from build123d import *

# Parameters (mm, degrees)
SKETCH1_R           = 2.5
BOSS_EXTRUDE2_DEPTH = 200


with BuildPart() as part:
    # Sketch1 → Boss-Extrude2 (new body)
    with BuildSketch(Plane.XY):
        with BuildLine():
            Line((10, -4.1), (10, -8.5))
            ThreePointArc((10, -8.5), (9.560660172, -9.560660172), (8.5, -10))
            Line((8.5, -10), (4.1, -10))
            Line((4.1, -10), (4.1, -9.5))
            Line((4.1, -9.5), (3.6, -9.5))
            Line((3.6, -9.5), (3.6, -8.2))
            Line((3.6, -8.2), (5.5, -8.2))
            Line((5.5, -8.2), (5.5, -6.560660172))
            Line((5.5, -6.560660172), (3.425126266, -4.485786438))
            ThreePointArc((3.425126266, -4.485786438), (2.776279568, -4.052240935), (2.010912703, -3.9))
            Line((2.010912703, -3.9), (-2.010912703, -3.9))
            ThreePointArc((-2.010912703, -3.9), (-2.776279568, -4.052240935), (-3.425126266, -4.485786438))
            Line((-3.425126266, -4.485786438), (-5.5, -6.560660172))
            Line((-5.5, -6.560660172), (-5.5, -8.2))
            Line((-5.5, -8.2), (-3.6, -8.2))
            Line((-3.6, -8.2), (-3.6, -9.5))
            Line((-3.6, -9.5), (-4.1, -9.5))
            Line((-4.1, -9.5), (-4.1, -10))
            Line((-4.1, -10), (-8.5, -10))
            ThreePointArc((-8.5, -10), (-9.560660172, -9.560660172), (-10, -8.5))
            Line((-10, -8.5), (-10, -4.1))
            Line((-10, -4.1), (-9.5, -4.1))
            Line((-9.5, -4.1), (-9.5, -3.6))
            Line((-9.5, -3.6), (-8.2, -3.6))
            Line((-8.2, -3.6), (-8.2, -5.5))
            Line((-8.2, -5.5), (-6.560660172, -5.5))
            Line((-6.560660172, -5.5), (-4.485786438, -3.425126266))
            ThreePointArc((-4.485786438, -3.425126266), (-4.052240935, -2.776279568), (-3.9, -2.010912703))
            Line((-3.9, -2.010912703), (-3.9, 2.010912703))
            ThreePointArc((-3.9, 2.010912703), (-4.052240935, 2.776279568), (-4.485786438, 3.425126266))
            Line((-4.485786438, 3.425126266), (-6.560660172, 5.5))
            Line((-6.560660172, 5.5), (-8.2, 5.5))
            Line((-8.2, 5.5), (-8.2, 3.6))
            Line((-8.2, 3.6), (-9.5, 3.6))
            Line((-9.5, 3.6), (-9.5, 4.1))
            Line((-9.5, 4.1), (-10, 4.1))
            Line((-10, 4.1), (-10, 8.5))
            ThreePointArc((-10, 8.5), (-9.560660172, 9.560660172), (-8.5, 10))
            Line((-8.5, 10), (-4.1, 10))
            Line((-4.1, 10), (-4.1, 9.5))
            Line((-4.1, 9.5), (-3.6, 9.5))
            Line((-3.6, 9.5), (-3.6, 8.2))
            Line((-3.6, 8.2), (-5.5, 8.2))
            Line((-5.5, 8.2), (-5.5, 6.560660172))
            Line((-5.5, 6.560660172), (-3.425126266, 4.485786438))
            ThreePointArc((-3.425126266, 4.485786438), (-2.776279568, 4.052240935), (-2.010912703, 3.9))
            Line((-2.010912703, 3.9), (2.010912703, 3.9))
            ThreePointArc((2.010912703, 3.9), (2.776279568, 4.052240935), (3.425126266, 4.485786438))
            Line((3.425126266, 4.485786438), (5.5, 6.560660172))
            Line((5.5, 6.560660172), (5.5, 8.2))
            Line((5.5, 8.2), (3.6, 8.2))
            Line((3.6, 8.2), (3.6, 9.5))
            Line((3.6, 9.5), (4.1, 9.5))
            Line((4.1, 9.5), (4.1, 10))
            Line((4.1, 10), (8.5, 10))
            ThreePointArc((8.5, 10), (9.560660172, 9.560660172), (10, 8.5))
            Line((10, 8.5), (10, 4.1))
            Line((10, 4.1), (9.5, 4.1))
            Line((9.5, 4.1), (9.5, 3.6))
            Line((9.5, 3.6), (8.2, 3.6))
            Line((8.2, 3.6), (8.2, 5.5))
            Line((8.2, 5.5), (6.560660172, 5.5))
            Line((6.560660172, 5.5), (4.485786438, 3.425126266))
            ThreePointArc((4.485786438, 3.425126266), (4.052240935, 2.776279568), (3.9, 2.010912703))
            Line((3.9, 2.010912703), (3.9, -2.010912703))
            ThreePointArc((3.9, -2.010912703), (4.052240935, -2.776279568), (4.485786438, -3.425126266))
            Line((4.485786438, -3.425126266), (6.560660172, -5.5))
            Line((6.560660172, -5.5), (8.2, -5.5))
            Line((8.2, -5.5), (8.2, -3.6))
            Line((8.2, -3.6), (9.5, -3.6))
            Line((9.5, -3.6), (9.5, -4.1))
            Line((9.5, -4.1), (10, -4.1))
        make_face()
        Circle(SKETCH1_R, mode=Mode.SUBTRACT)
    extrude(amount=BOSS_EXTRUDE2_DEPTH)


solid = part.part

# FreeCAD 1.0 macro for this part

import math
import FreeCAD as App
import Part
import Sketcher

doc = App.newDocument("Part")
body = doc.addObject("PartDesign::Body", "Body")

sketch1 = body.newObject("Sketcher::SketchObject", "Sketch")
sketch1.AttachmentSupport = (doc.getObject("XY_Plane"), [""])
sketch1.MapMode = "FlatFace"
sketch1.addGeometry(Part.LineSegment(App.Vector(10, -8.5, 0), App.Vector(10, -4.1, 0)), False)
sketch1.addGeometry(Part.LineSegment(App.Vector(10, -4.1, 0), App.Vector(9.5, -4.1, 0)), False)
sketch1.addGeometry(Part.LineSegment(App.Vector(9.5, -4.1, 0), App.Vector(9.5, -3.6, 0)), False)
sketch1.addGeometry(Part.LineSegment(App.Vector(9.5, -3.6, 0), App.Vector(8.2, -3.6, 0)), False)
sketch1.addGeometry(Part.LineSegment(App.Vector(8.2, -3.6, 0), App.Vector(8.2, -5.5, 0)), False)
sketch1.addGeometry(Part.LineSegment(App.Vector(8.2, -5.5, 0), App.Vector(6.56, -5.5, 0)), False)
sketch1.addGeometry(Part.LineSegment(App.Vector(6.56, -5.5, 0), App.Vector(4.49, -3.43, 0)), False)
sketch1.addGeometry(Part.ArcOfCircle(Part.Circle(App.Vector(5.9, -2.01, 0), App.Vector(0, 0, 1), 2), math.radians(180), math.radians(225)), False)
sketch1.addGeometry(Part.LineSegment(App.Vector(3.9, -2.01, 0), App.Vector(3.9, 2.01, 0)), False)
sketch1.addGeometry(Part.ArcOfCircle(Part.Circle(App.Vector(5.9, 2.01, 0), App.Vector(0, 0, 1), 2), math.radians(135), math.radians(180)), False)
sketch1.addGeometry(Part.LineSegment(App.Vector(4.49, 3.43, 0), App.Vector(6.56, 5.5, 0)), False)
sketch1.addGeometry(Part.LineSegment(App.Vector(6.56, 5.5, 0), App.Vector(8.2, 5.5, 0)), False)
sketch1.addGeometry(Part.LineSegment(App.Vector(8.2, 5.5, 0), App.Vector(8.2, 3.6, 0)), False)
sketch1.addGeometry(Part.LineSegment(App.Vector(8.2, 3.6, 0), App.Vector(9.5, 3.6, 0)), False)
sketch1.addGeometry(Part.LineSegment(App.Vector(9.5, 3.6, 0), App.Vector(9.5, 4.1, 0)), False)
sketch1.addGeometry(Part.LineSegment(App.Vector(9.5, 4.1, 0), App.Vector(10, 4.1, 0)), False)
sketch1.addGeometry(Part.LineSegment(App.Vector(10, 4.1, 0), App.Vector(10, 8.5, 0)), False)
sketch1.addGeometry(Part.ArcOfCircle(Part.Circle(App.Vector(8.5, 8.5, 0), App.Vector(0, 0, 1), 1.5), math.radians(0), math.radians(90)), False)
sketch1.addGeometry(Part.LineSegment(App.Vector(8.5, 10, 0), App.Vector(4.1, 10, 0)), False)
sketch1.addGeometry(Part.LineSegment(App.Vector(4.1, 10, 0), App.Vector(4.1, 9.5, 0)), False)
sketch1.addGeometry(Part.LineSegment(App.Vector(4.1, 9.5, 0), App.Vector(3.6, 9.5, 0)), False)
sketch1.addGeometry(Part.LineSegment(App.Vector(3.6, 9.5, 0), App.Vector(3.6, 8.2, 0)), False)
sketch1.addGeometry(Part.LineSegment(App.Vector(3.6, 8.2, 0), App.Vector(5.5, 8.2, 0)), False)
sketch1.addGeometry(Part.LineSegment(App.Vector(5.5, 8.2, 0), App.Vector(5.5, 6.56, 0)), False)
sketch1.addGeometry(Part.LineSegment(App.Vector(5.5, 6.56, 0), App.Vector(3.43, 4.49, 0)), False)
sketch1.addGeometry(Part.ArcOfCircle(Part.Circle(App.Vector(2.01, 5.9, 0), App.Vector(0, 0, 1), 2), math.radians(-90), math.radians(-45)), False)
sketch1.addGeometry(Part.LineSegment(App.Vector(2.01, 3.9, 0), App.Vector(-2.01, 3.9, 0)), False)
sketch1.addGeometry(Part.ArcOfCircle(Part.Circle(App.Vector(-2.01, 5.9, 0), App.Vector(0, 0, 1), 2), math.radians(-135), math.radians(-90)), False)
sketch1.addGeometry(Part.LineSegment(App.Vector(-3.43, 4.49, 0), App.Vector(-5.5, 6.56, 0)), False)
sketch1.addGeometry(Part.LineSegment(App.Vector(-5.5, 6.56, 0), App.Vector(-5.5, 8.2, 0)), False)
sketch1.addGeometry(Part.LineSegment(App.Vector(-5.5, 8.2, 0), App.Vector(-3.6, 8.2, 0)), False)
sketch1.addGeometry(Part.LineSegment(App.Vector(-3.6, 8.2, 0), App.Vector(-3.6, 9.5, 0)), False)
sketch1.addGeometry(Part.LineSegment(App.Vector(-3.6, 9.5, 0), App.Vector(-4.1, 9.5, 0)), False)
sketch1.addGeometry(Part.LineSegment(App.Vector(-4.1, 9.5, 0), App.Vector(-4.1, 10, 0)), False)
sketch1.addGeometry(Part.LineSegment(App.Vector(-4.1, 10, 0), App.Vector(-8.5, 10, 0)), False)
sketch1.addGeometry(Part.ArcOfCircle(Part.Circle(App.Vector(-8.5, 8.5, 0), App.Vector(0, 0, 1), 1.5), math.radians(90), math.radians(180)), False)
sketch1.addGeometry(Part.LineSegment(App.Vector(-10, 8.5, 0), App.Vector(-10, 4.1, 0)), False)
sketch1.addGeometry(Part.LineSegment(App.Vector(-10, 4.1, 0), App.Vector(-9.5, 4.1, 0)), False)
sketch1.addGeometry(Part.LineSegment(App.Vector(-9.5, 4.1, 0), App.Vector(-9.5, 3.6, 0)), False)
sketch1.addGeometry(Part.LineSegment(App.Vector(-9.5, 3.6, 0), App.Vector(-8.2, 3.6, 0)), False)
sketch1.addGeometry(Part.LineSegment(App.Vector(-8.2, 3.6, 0), App.Vector(-8.2, 5.5, 0)), False)
sketch1.addGeometry(Part.LineSegment(App.Vector(-8.2, 5.5, 0), App.Vector(-6.56, 5.5, 0)), False)
sketch1.addGeometry(Part.LineSegment(App.Vector(-6.56, 5.5, 0), App.Vector(-4.49, 3.43, 0)), False)
sketch1.addGeometry(Part.ArcOfCircle(Part.Circle(App.Vector(-5.9, 2.01, 0), App.Vector(0, 0, 1), 2), math.radians(0), math.radians(45)), False)
sketch1.addGeometry(Part.LineSegment(App.Vector(-3.9, 2.01, 0), App.Vector(-3.9, -2.01, 0)), False)
sketch1.addGeometry(Part.ArcOfCircle(Part.Circle(App.Vector(-5.9, -2.01, 0), App.Vector(0, 0, 1), 2), math.radians(-45), math.radians(0)), False)
sketch1.addGeometry(Part.LineSegment(App.Vector(-4.49, -3.43, 0), App.Vector(-6.56, -5.5, 0)), False)
sketch1.addGeometry(Part.LineSegment(App.Vector(-6.56, -5.5, 0), App.Vector(-8.2, -5.5, 0)), False)
sketch1.addGeometry(Part.LineSegment(App.Vector(-8.2, -5.5, 0), App.Vector(-8.2, -3.6, 0)), False)
sketch1.addGeometry(Part.LineSegment(App.Vector(-8.2, -3.6, 0), App.Vector(-9.5, -3.6, 0)), False)
sketch1.addGeometry(Part.LineSegment(App.Vector(-9.5, -3.6, 0), App.Vector(-9.5, -4.1, 0)), False)
sketch1.addGeometry(Part.LineSegment(App.Vector(-9.5, -4.1, 0), App.Vector(-10, -4.1, 0)), False)
sketch1.addGeometry(Part.LineSegment(App.Vector(-10, -4.1, 0), App.Vector(-10, -8.5, 0)), False)
sketch1.addGeometry(Part.ArcOfCircle(Part.Circle(App.Vector(-8.5, -8.5, 0), App.Vector(0, 0, 1), 1.5), math.radians(180), math.radians(270)), False)
sketch1.addGeometry(Part.LineSegment(App.Vector(-8.5, -10, 0), App.Vector(-4.1, -10, 0)), False)
sketch1.addGeometry(Part.LineSegment(App.Vector(-4.1, -10, 0), App.Vector(-4.1, -9.5, 0)), False)
sketch1.addGeometry(Part.LineSegment(App.Vector(-4.1, -9.5, 0), App.Vector(-3.6, -9.5, 0)), False)
sketch1.addGeometry(Part.LineSegment(App.Vector(-3.6, -9.5, 0), App.Vector(-3.6, -8.2, 0)), False)
sketch1.addGeometry(Part.LineSegment(App.Vector(-3.6, -8.2, 0), App.Vector(-5.5, -8.2, 0)), False)
sketch1.addGeometry(Part.LineSegment(App.Vector(-5.5, -8.2, 0), App.Vector(-5.5, -6.56, 0)), False)
sketch1.addGeometry(Part.LineSegment(App.Vector(-5.5, -6.56, 0), App.Vector(-3.43, -4.49, 0)), False)
sketch1.addGeometry(Part.ArcOfCircle(Part.Circle(App.Vector(-2.01, -5.9, 0), App.Vector(0, 0, 1), 2), math.radians(90), math.radians(135)), False)
sketch1.addGeometry(Part.LineSegment(App.Vector(-2.01, -3.9, 0), App.Vector(2.01, -3.9, 0)), False)
sketch1.addGeometry(Part.ArcOfCircle(Part.Circle(App.Vector(2.01, -5.9, 0), App.Vector(0, 0, 1), 2), math.radians(45), math.radians(90)), False)
sketch1.addGeometry(Part.LineSegment(App.Vector(3.43, -4.49, 0), App.Vector(5.5, -6.56, 0)), False)
sketch1.addGeometry(Part.LineSegment(App.Vector(5.5, -6.56, 0), App.Vector(5.5, -8.2, 0)), False)
sketch1.addGeometry(Part.LineSegment(App.Vector(5.5, -8.2, 0), App.Vector(3.6, -8.2, 0)), False)
sketch1.addGeometry(Part.LineSegment(App.Vector(3.6, -8.2, 0), App.Vector(3.6, -9.5, 0)), False)
sketch1.addGeometry(Part.LineSegment(App.Vector(3.6, -9.5, 0), App.Vector(4.1, -9.5, 0)), False)
sketch1.addGeometry(Part.LineSegment(App.Vector(4.1, -9.5, 0), App.Vector(4.1, -10, 0)), False)
sketch1.addGeometry(Part.LineSegment(App.Vector(4.1, -10, 0), App.Vector(8.5, -10, 0)), False)
sketch1.addGeometry(Part.ArcOfCircle(Part.Circle(App.Vector(8.5, -8.5, 0), App.Vector(0, 0, 1), 1.5), math.radians(-90), math.radians(0)), False)
sketch1.addGeometry(Part.Circle(App.Vector(0, 0, 0), App.Vector(0, 0, 1), 2.5), False)
sketch1.addConstraint(Sketcher.Constraint("Coincident", 0, 2, 1, 1))
sketch1.addConstraint(Sketcher.Constraint("Coincident", 1, 2, 2, 1))
sketch1.addConstraint(Sketcher.Constraint("Coincident", 2, 2, 3, 1))
sketch1.addConstraint(Sketcher.Constraint("Coincident", 3, 2, 4, 1))
sketch1.addConstraint(Sketcher.Constraint("Coincident", 4, 2, 5, 1))
sketch1.addConstraint(Sketcher.Constraint("Coincident", 5, 2, 6, 1))
sketch1.addConstraint(Sketcher.Constraint("Tangent", 6, 2, 7, 2))
sketch1.addConstraint(Sketcher.Constraint("Tangent", 7, 1, 8, 1))
sketch1.addConstraint(Sketcher.Constraint("Tangent", 8, 2, 9, 2))
sketch1.addConstraint(Sketcher.Constraint("Tangent", 9, 1, 10, 1))
sketch1.addConstraint(Sketcher.Constraint("Coincident", 10, 2, 11, 1))
sketch1.addConstraint(Sketcher.Constraint("Coincident", 11, 2, 12, 1))
sketch1.addConstraint(Sketcher.Constraint("Coincident", 12, 2, 13, 1))
sketch1.addConstraint(Sketcher.Constraint("Coincident", 13, 2, 14, 1))
sketch1.addConstraint(Sketcher.Constraint("Coincident", 14, 2, 15, 1))
sketch1.addConstraint(Sketcher.Constraint("Coincident", 15, 2, 16, 1))
sketch1.addConstraint(Sketcher.Constraint("Tangent", 16, 2, 17, 1))
sketch1.addConstraint(Sketcher.Constraint("Tangent", 17, 2, 18, 1))
sketch1.addConstraint(Sketcher.Constraint("Coincident", 18, 2, 19, 1))
sketch1.addConstraint(Sketcher.Constraint("Coincident", 19, 2, 20, 1))
sketch1.addConstraint(Sketcher.Constraint("Coincident", 20, 2, 21, 1))
sketch1.addConstraint(Sketcher.Constraint("Coincident", 21, 2, 22, 1))
sketch1.addConstraint(Sketcher.Constraint("Coincident", 22, 2, 23, 1))
sketch1.addConstraint(Sketcher.Constraint("Coincident", 23, 2, 24, 1))
sketch1.addConstraint(Sketcher.Constraint("Tangent", 24, 2, 25, 2))
sketch1.addConstraint(Sketcher.Constraint("Tangent", 25, 1, 26, 1))
sketch1.addConstraint(Sketcher.Constraint("Tangent", 26, 2, 27, 2))
sketch1.addConstraint(Sketcher.Constraint("Tangent", 27, 1, 28, 1))
sketch1.addConstraint(Sketcher.Constraint("Coincident", 28, 2, 29, 1))
sketch1.addConstraint(Sketcher.Constraint("Coincident", 29, 2, 30, 1))
sketch1.addConstraint(Sketcher.Constraint("Coincident", 30, 2, 31, 1))
sketch1.addConstraint(Sketcher.Constraint("Coincident", 31, 2, 32, 1))
sketch1.addConstraint(Sketcher.Constraint("Coincident", 32, 2, 33, 1))
sketch1.addConstraint(Sketcher.Constraint("Coincident", 33, 2, 34, 1))
sketch1.addConstraint(Sketcher.Constraint("Tangent", 34, 2, 35, 1))
sketch1.addConstraint(Sketcher.Constraint("Tangent", 35, 2, 36, 1))
sketch1.addConstraint(Sketcher.Constraint("Coincident", 36, 2, 37, 1))
sketch1.addConstraint(Sketcher.Constraint("Coincident", 37, 2, 38, 1))
sketch1.addConstraint(Sketcher.Constraint("Coincident", 38, 2, 39, 1))
sketch1.addConstraint(Sketcher.Constraint("Coincident", 39, 2, 40, 1))
sketch1.addConstraint(Sketcher.Constraint("Coincident", 40, 2, 41, 1))
sketch1.addConstraint(Sketcher.Constraint("Coincident", 41, 2, 42, 1))
sketch1.addConstraint(Sketcher.Constraint("Tangent", 42, 2, 43, 2))
sketch1.addConstraint(Sketcher.Constraint("Tangent", 43, 1, 44, 1))
sketch1.addConstraint(Sketcher.Constraint("Tangent", 44, 2, 45, 2))
sketch1.addConstraint(Sketcher.Constraint("Tangent", 45, 1, 46, 1))
sketch1.addConstraint(Sketcher.Constraint("Coincident", 46, 2, 47, 1))
sketch1.addConstraint(Sketcher.Constraint("Coincident", 47, 2, 48, 1))
sketch1.addConstraint(Sketcher.Constraint("Coincident", 48, 2, 49, 1))
sketch1.addConstraint(Sketcher.Constraint("Coincident", 49, 2, 50, 1))
sketch1.addConstraint(Sketcher.Constraint("Coincident", 50, 2, 51, 1))
sketch1.addConstraint(Sketcher.Constraint("Coincident", 51, 2, 52, 1))
sketch1.addConstraint(Sketcher.Constraint("Tangent", 52, 2, 53, 1))
sketch1.addConstraint(Sketcher.Constraint("Tangent", 53, 2, 54, 1))
sketch1.addConstraint(Sketcher.Constraint("Coincident", 54, 2, 55, 1))
sketch1.addConstraint(Sketcher.Constraint("Coincident", 55, 2, 56, 1))
sketch1.addConstraint(Sketcher.Constraint("Coincident", 56, 2, 57, 1))
sketch1.addConstraint(Sketcher.Constraint("Coincident", 57, 2, 58, 1))
sketch1.addConstraint(Sketcher.Constraint("Coincident", 58, 2, 59, 1))
sketch1.addConstraint(Sketcher.Constraint("Coincident", 59, 2, 60, 1))
sketch1.addConstraint(Sketcher.Constraint("Tangent", 60, 2, 61, 2))
sketch1.addConstraint(Sketcher.Constraint("Tangent", 61, 1, 62, 1))
sketch1.addConstraint(Sketcher.Constraint("Tangent", 62, 2, 63, 2))
sketch1.addConstraint(Sketcher.Constraint("Tangent", 63, 1, 64, 1))
sketch1.addConstraint(Sketcher.Constraint("Coincident", 64, 2, 65, 1))
sketch1.addConstraint(Sketcher.Constraint("Coincident", 65, 2, 66, 1))
sketch1.addConstraint(Sketcher.Constraint("Coincident", 66, 2, 67, 1))
sketch1.addConstraint(Sketcher.Constraint("Coincident", 67, 2, 68, 1))
sketch1.addConstraint(Sketcher.Constraint("Coincident", 68, 2, 69, 1))
sketch1.addConstraint(Sketcher.Constraint("Coincident", 69, 2, 70, 1))
sketch1.addConstraint(Sketcher.Constraint("Tangent", 70, 2, 71, 1))
sketch1.addConstraint(Sketcher.Constraint("Tangent", 71, 2, 0, 1))
sketch1.addConstraint(Sketcher.Constraint("Vertical", 0))
sketch1.addConstraint(Sketcher.Constraint("Horizontal", 1))
sketch1.addConstraint(Sketcher.Constraint("Vertical", 2))
sketch1.addConstraint(Sketcher.Constraint("Horizontal", 3))
sketch1.addConstraint(Sketcher.Constraint("Vertical", 4))
sketch1.addConstraint(Sketcher.Constraint("Horizontal", 5))
sketch1.addConstraint(Sketcher.Constraint("Vertical", 8))
sketch1.addConstraint(Sketcher.Constraint("Horizontal", 11))
sketch1.addConstraint(Sketcher.Constraint("Vertical", 12))
sketch1.addConstraint(Sketcher.Constraint("Horizontal", 13))
sketch1.addConstraint(Sketcher.Constraint("Vertical", 14))
sketch1.addConstraint(Sketcher.Constraint("Horizontal", 15))
sketch1.addConstraint(Sketcher.Constraint("Vertical", 16))
sketch1.addConstraint(Sketcher.Constraint("Horizontal", 18))
sketch1.addConstraint(Sketcher.Constraint("Vertical", 19))
sketch1.addConstraint(Sketcher.Constraint("Horizontal", 20))
sketch1.addConstraint(Sketcher.Constraint("Vertical", 21))
sketch1.addConstraint(Sketcher.Constraint("Horizontal", 22))
sketch1.addConstraint(Sketcher.Constraint("Vertical", 23))
sketch1.addConstraint(Sketcher.Constraint("Horizontal", 26))
sketch1.addConstraint(Sketcher.Constraint("Vertical", 29))
sketch1.addConstraint(Sketcher.Constraint("Horizontal", 30))
sketch1.addConstraint(Sketcher.Constraint("Vertical", 31))
sketch1.addConstraint(Sketcher.Constraint("Horizontal", 32))
sketch1.addConstraint(Sketcher.Constraint("Vertical", 33))
sketch1.addConstraint(Sketcher.Constraint("Horizontal", 34))
sketch1.addConstraint(Sketcher.Constraint("Vertical", 36))
sketch1.addConstraint(Sketcher.Constraint("Horizontal", 37))
sketch1.addConstraint(Sketcher.Constraint("Vertical", 38))
sketch1.addConstraint(Sketcher.Constraint("Horizontal", 39))
sketch1.addConstraint(Sketcher.Constraint("Vertical", 40))
sketch1.addConstraint(Sketcher.Constraint("Horizontal", 41))
sketch1.addConstraint(Sketcher.Constraint("Vertical", 44))
sketch1.addConstraint(Sketcher.Constraint("Horizontal", 47))
sketch1.addConstraint(Sketcher.Constraint("Vertical", 48))
sketch1.addConstraint(Sketcher.Constraint("Horizontal", 49))
sketch1.addConstraint(Sketcher.Constraint("Vertical", 50))
sketch1.addConstraint(Sketcher.Constraint("Horizontal", 51))
sketch1.addConstraint(Sketcher.Constraint("Vertical", 52))
sketch1.addConstraint(Sketcher.Constraint("Horizontal", 54))
sketch1.addConstraint(Sketcher.Constraint("Vertical", 55))
sketch1.addConstraint(Sketcher.Constraint("Horizontal", 56))
sketch1.addConstraint(Sketcher.Constraint("Vertical", 57))
sketch1.addConstraint(Sketcher.Constraint("Horizontal", 58))
sketch1.addConstraint(Sketcher.Constraint("Vertical", 59))
sketch1.addConstraint(Sketcher.Constraint("Horizontal", 62))
sketch1.addConstraint(Sketcher.Constraint("Vertical", 65))
sketch1.addConstraint(Sketcher.Constraint("Horizontal", 66))
sketch1.addConstraint(Sketcher.Constraint("Vertical", 67))
sketch1.addConstraint(Sketcher.Constraint("Horizontal", 68))
sketch1.addConstraint(Sketcher.Constraint("Vertical", 69))
sketch1.addConstraint(Sketcher.Constraint("Horizontal", 70))
sketch1.addConstraint(Sketcher.Constraint("Coincident", 72, 3, -1, 1))
sketch1.addConstraint(Sketcher.Constraint("Equal", 7, 9))
sketch1.addConstraint(Sketcher.Constraint("Equal", 9, 25))
sketch1.addConstraint(Sketcher.Constraint("Equal", 25, 27))
sketch1.addConstraint(Sketcher.Constraint("Equal", 17, 35))
sketch1.addConstraint(Sketcher.Constraint("Equal", 27, 43))
sketch1.addConstraint(Sketcher.Constraint("Equal", 43, 45))
sketch1.addConstraint(Sketcher.Constraint("Equal", 35, 53))
sketch1.addConstraint(Sketcher.Constraint("Equal", 45, 61))
sketch1.addConstraint(Sketcher.Constraint("Equal", 61, 63))
sketch1.addConstraint(Sketcher.Constraint("Equal", 53, 71))
sketch1.addConstraint(Sketcher.Constraint("Symmetric", 7, 3, 43, 3, -1, 1))
sketch1.addConstraint(Sketcher.Constraint("Symmetric", 17, 3, 53, 3, -1, 1))
sketch1.addConstraint(Sketcher.Constraint("Symmetric", 25, 3, 61, 3, -1, 1))
sketch1.addConstraint(Sketcher.Constraint("Symmetric", 35, 3, 71, 3, -1, 1))
sketch1.addConstraint(Sketcher.Constraint("Symmetric", 1, 2, 37, 2, -1, 1))
sketch1.addConstraint(Sketcher.Constraint("Symmetric", 3, 2, 39, 2, -1, 1))
sketch1.addConstraint(Sketcher.Constraint("Symmetric", 5, 2, 41, 2, -1, 1))
sketch1.addConstraint(Sketcher.Constraint("Symmetric", 9, 1, 45, 1, -1, 1))
sketch1.addConstraint(Sketcher.Constraint("Symmetric", 11, 2, 47, 2, -1, 1))
sketch1.addConstraint(Sketcher.Constraint("Symmetric", 13, 2, 49, 2, -1, 1))
sketch1.addConstraint(Sketcher.Constraint("Symmetric", 19, 2, 55, 2, -1, 1))
sketch1.addConstraint(Sketcher.Constraint("Symmetric", 21, 2, 57, 2, -1, 1))
sketch1.addConstraint(Sketcher.Constraint("Symmetric", 23, 2, 59, 2, -1, 1))
sketch1.addConstraint(Sketcher.Constraint("Symmetric", 27, 1, 63, 1, -1, 1))
sketch1.addConstraint(Sketcher.Constraint("Symmetric", 29, 2, 65, 2, -1, 1))
sketch1.addConstraint(Sketcher.Constraint("Symmetric", 31, 2, 67, 2, -1, 1))
sketch1.addConstraint(Sketcher.Constraint("Symmetric", 17, 3, 35, 3, -2))
sketch1.addConstraint(Sketcher.Constraint("Symmetric", 24, 2, 27, 1, -2))
sketch1.addConstraint(Sketcher.Constraint("Symmetric", 22, 2, 29, 2, -2))
sketch1.addConstraint(Sketcher.Constraint("Symmetric", 20, 2, 31, 2, -2))
sketch1.addConstraint(Sketcher.Constraint("Symmetric", 14, 2, 37, 2, -2))
sketch1.addConstraint(Sketcher.Constraint("Symmetric", 12, 2, 39, 2, -2))
sketch1.addConstraint(Sketcher.Constraint("Symmetric", 10, 2, 41, 2, -2))
sketch1.addConstraint(Sketcher.Constraint("Perpendicular", 6, 10))
sketch1.addConstraint(Sketcher.Constraint("Parallel", 10, 24))
sketch1.addConstraint(Sketcher.Constraint("Perpendicular", 24, 28))
sketch1.addConstraint(Sketcher.Constraint("Horizontal", 1, 2, 50, 2))
sketch1.addConstraint(Sketcher.Constraint("Vertical", 33, 2, 54, 2))
sketch1.addConstraint(Sketcher.Constraint("Vertical", 19, 2, 68, 2))
sketch1.addConstraint(Sketcher.Constraint("Equal", 15, 20))
sketch1.addConstraint(Sketcher.Constraint("Equal", 70, 0))
sketch1.addConstraint(Sketcher.Constraint("Equal", 68, 2))
sketch1.addConstraint(Sketcher.Constraint("Equal", 66, 4))
sketch1.addConstraint(Sketcher.Constraint("Equal", 62, 8))
sketch1.addConstraint(Sketcher.Constraint("Equal", 14, 19))
sketch1.addConstraint(Sketcher.Constraint("Equal", 49, 21))
sketch1.addConstraint(Sketcher.Constraint("Equal", 47, 23))
sketch1.addConstraint(Sketcher.Constraint("Equal", 10, 24))
sketch1.addConstraint(Sketcher.Constraint("Diameter", 72, 5.0))
sketch1.addConstraint(Sketcher.Constraint("Radius", 7, 2.0))
sketch1.addConstraint(Sketcher.Constraint("Radius", 17, 1.5))
sketch1.addConstraint(Sketcher.Constraint("DistanceX", 1, 2, 1, 1, 0.5))
sketch1.addConstraint(Sketcher.Constraint("DistanceX", 3, 2, 3, 1, 1.3))
sketch1.addConstraint(Sketcher.Constraint("DistanceX", 18, 2, 18, 1, 4.4))
sketch1.addConstraint(Sketcher.Constraint("DistanceX", 22, 1, 22, 2, 1.9))
sketch1.addConstraint(Sketcher.Constraint("DistanceX", -1, 1, 0, 2, 10.0))
sketch1.addConstraint(Sketcher.Constraint("DistanceX", -1, 1, 7, 3, 5.9))
sketch1.addConstraint(Sketcher.Constraint("DistanceX", 5, 2, 5, 1, 1.63934))
pad1 = body.newObject("PartDesign::Pad", "Pad")
pad1.Profile = sketch1
pad1.Length = 200

doc.recompute()
